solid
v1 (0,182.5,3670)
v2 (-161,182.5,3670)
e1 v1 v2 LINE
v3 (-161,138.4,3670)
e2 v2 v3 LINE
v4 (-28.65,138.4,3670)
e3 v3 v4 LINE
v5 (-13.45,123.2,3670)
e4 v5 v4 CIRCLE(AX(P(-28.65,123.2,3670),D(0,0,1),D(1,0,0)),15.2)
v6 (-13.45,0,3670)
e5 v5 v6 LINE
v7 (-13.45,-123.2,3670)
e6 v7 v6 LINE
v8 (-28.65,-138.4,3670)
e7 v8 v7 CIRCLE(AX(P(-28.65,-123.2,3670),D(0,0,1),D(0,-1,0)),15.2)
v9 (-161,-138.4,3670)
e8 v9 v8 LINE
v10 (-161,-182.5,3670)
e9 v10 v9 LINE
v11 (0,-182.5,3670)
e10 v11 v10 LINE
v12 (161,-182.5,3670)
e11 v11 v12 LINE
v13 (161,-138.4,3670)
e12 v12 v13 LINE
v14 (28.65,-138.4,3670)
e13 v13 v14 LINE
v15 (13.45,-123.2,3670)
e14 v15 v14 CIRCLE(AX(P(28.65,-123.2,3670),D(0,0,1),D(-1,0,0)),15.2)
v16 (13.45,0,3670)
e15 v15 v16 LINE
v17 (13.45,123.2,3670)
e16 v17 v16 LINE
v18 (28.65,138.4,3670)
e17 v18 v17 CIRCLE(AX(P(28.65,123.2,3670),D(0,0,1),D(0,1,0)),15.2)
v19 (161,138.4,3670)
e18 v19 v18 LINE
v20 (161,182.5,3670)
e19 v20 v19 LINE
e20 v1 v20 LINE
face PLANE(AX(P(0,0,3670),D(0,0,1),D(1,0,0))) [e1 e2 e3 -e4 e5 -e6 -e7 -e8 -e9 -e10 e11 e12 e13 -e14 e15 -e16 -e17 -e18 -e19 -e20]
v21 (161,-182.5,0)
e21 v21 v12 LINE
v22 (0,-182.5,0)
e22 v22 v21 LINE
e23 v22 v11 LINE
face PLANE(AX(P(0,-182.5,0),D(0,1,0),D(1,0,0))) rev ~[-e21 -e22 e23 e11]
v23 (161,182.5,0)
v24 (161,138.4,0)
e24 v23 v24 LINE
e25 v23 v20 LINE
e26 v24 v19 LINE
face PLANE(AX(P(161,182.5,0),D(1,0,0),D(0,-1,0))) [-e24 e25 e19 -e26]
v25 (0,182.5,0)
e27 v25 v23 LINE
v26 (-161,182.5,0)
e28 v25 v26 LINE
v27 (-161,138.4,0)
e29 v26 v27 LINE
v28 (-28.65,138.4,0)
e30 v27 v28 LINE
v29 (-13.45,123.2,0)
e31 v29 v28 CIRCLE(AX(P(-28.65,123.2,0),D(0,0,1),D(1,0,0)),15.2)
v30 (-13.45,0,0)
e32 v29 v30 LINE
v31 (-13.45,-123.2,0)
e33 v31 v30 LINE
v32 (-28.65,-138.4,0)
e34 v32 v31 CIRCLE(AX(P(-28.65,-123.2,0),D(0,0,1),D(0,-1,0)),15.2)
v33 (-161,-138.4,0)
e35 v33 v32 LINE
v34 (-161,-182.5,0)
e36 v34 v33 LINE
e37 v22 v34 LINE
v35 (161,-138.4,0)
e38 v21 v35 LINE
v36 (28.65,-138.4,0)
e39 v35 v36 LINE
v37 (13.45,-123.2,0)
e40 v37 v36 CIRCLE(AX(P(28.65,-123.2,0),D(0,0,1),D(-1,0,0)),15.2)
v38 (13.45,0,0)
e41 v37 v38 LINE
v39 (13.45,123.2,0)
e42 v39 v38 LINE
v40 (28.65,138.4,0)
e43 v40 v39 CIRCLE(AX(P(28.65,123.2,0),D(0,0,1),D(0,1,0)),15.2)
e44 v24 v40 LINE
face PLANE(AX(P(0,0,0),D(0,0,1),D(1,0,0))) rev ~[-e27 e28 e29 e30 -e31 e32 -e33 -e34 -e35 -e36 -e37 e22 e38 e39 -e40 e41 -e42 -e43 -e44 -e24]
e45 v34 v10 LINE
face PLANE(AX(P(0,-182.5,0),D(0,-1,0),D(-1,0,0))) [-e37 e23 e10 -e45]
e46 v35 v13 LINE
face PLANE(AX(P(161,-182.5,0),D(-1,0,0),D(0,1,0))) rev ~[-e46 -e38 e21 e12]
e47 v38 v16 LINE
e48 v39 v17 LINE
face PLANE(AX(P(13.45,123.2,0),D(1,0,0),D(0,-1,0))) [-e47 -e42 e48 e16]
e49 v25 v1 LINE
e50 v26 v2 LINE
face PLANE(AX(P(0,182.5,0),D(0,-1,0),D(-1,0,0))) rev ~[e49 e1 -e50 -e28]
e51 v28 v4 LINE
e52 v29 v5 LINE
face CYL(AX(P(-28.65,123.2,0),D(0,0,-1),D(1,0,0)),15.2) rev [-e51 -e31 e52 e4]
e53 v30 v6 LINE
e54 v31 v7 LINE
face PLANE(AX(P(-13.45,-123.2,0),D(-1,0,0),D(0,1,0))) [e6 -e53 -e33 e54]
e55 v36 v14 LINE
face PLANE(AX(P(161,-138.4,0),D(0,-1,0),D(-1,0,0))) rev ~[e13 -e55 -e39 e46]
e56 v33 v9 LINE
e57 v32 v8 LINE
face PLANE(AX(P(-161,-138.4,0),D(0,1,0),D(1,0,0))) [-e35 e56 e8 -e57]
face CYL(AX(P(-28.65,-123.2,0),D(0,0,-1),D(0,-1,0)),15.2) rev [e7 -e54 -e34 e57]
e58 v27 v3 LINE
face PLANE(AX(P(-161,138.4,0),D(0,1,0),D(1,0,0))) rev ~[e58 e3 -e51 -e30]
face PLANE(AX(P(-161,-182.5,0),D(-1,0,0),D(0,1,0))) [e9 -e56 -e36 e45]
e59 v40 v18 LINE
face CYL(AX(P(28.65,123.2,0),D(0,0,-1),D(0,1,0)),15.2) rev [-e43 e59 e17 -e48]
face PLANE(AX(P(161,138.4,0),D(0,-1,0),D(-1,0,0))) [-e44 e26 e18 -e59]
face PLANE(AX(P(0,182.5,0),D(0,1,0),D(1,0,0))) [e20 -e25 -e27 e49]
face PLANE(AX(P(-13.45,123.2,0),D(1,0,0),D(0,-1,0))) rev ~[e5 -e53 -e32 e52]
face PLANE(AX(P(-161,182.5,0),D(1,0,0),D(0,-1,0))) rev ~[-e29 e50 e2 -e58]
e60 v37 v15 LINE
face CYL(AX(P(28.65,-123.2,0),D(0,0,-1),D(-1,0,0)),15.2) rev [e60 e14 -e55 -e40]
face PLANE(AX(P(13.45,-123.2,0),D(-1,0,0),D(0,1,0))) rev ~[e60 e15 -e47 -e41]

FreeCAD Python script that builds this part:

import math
import FreeCAD as App
import Part
import Sketcher

doc = App.newDocument("Part")
params = doc.addObject("Spreadsheet::Sheet", "Params")
for row, (alias, value) in enumerate([
    ("sketch1_radius", "15.2 mm"),
    ("sketch1_height", "44.1 mm"),
    ("pad1_length", "3670 mm"),
], start=1):
    params.set(f"A{row}", alias)
    params.set(f"B{row}", "=" + value)
    params.setAlias(f"B{row}", alias)

body = doc.addObject("PartDesign::Body", "Body")

# Sketch on XY plane
sketch1 = doc.addObject("Sketcher::SketchObject", "Sketch")
body.addObject(sketch1)
sketch1.AttachmentSupport = (doc.XY_Plane, [""])
sketch1.MapMode = "FlatFace"
sketch1.addGeometry(Part.LineSegment(App.Vector(-161, -138.4, 0), App.Vector(-161, -182.5, 0)), False)
sketch1.addGeometry(Part.LineSegment(App.Vector(-161, -182.5, 0), App.Vector(161, -182.5, 0)), False)
sketch1.addGeometry(Part.LineSegment(App.Vector(161, -182.5, 0), App.Vector(161, -138.4, 0)), False)
sketch1.addGeometry(Part.LineSegment(App.Vector(161, -138.4, 0), App.Vector(28.65, -138.4, 0)), False)
sketch1.addGeometry(Part.ArcOfCircle(Part.Circle(App.Vector(28.65, -123.2, 0), App.Vector(0, 0, 1), 15.2), math.radians(180), math.radians(270)), False)
sketch1.addGeometry(Part.LineSegment(App.Vector(13.45, -123.2, 0), App.Vector(13.45, 123.2, 0)), False)
sketch1.addGeometry(Part.ArcOfCircle(Part.Circle(App.Vector(28.65, 123.2, 0), App.Vector(0, 0, 1), 15.2), math.radians(90), math.radians(180)), False)
sketch1.addGeometry(Part.LineSegment(App.Vector(28.65, 138.4, 0), App.Vector(161, 138.4, 0)), False)
sketch1.addGeometry(Part.LineSegment(App.Vector(161, 138.4, 0), App.Vector(161, 182.5, 0)), False)
sketch1.addGeometry(Part.LineSegment(App.Vector(161, 182.5, 0), App.Vector(-161, 182.5, 0)), False)
sketch1.addGeometry(Part.LineSegment(App.Vector(-161, 182.5, 0), App.Vector(-161, 138.4, 0)), False)
sketch1.addGeometry(Part.LineSegment(App.Vector(-161, 138.4, 0), App.Vector(-28.65, 138.4, 0)), False)
sketch1.addGeometry(Part.ArcOfCircle(Part.Circle(App.Vector(-28.65, 123.2, 0), App.Vector(0, 0, 1), 15.2), math.radians(0), math.radians(90)), False)
sketch1.addGeometry(Part.LineSegment(App.Vector(-13.45, 123.2, 0), App.Vector(-13.45, -123.2, 0)), False)
sketch1.addGeometry(Part.ArcOfCircle(Part.Circle(App.Vector(-28.65, -123.2, 0), App.Vector(0, 0, 1), 15.2), math.radians(-90), math.radians(0)), False)
sketch1.addGeometry(Part.LineSegment(App.Vector(-28.65, -138.4, 0), App.Vector(-161, -138.4, 0)), False)
sketch1.addConstraint(Sketcher.Constraint("Coincident", 0, 2, 1, 1))
sketch1.addConstraint(Sketcher.Constraint("Coincident", 1, 2, 2, 1))
sketch1.addConstraint(Sketcher.Constraint("Coincident", 2, 2, 3, 1))
sketch1.addConstraint(Sketcher.Constraint("Tangent", 3, 2, 4, 2))
sketch1.addConstraint(Sketcher.Constraint("Tangent", 4, 1, 5, 1))
sketch1.addConstraint(Sketcher.Constraint("Tangent", 5, 2, 6, 2))
sketch1.addConstraint(Sketcher.Constraint("Tangent", 6, 1, 7, 1))
sketch1.addConstraint(Sketcher.Constraint("Coincident", 7, 2, 8, 1))
sketch1.addConstraint(Sketcher.Constraint("Coincident", 8, 2, 9, 1))
sketch1.addConstraint(Sketcher.Constraint("Coincident", 9, 2, 10, 1))
sketch1.addConstraint(Sketcher.Constraint("Coincident", 10, 2, 11, 1))
sketch1.addConstraint(Sketcher.Constraint("Tangent", 11, 2, 12, 2))
sketch1.addConstraint(Sketcher.Constraint("Tangent", 12, 1, 13, 1))
sketch1.addConstraint(Sketcher.Constraint("Tangent", 13, 2, 14, 2))
sketch1.addConstraint(Sketcher.Constraint("Tangent", 14, 1, 15, 1))
sketch1.addConstraint(Sketcher.Constraint("Coincident", 15, 2, 0, 1))
sketch1.addConstraint(Sketcher.Constraint("Vertical", 0))
sketch1.addConstraint(Sketcher.Constraint("Horizontal", 1))
sketch1.addConstraint(Sketcher.Constraint("Vertical", 2))
sketch1.addConstraint(Sketcher.Constraint("Horizontal", 3))
sketch1.addConstraint(Sketcher.Constraint("Vertical", 5))
sketch1.addConstraint(Sketcher.Constraint("Horizontal", 7))
sketch1.addConstraint(Sketcher.Constraint("Vertical", 8))
sketch1.addConstraint(Sketcher.Constraint("Horizontal", 9))
sketch1.addConstraint(Sketcher.Constraint("Vertical", 10))
sketch1.addConstraint(Sketcher.Constraint("Horizontal", 11))
sketch1.addConstraint(Sketcher.Constraint("Vertical", 13))
sketch1.addConstraint(Sketcher.Constraint("Horizontal", 15))
sketch1.addConstraint(Sketcher.Constraint("Equal", 4, 6))
sketch1.addConstraint(Sketcher.Constraint("Equal", 6, 12))
sketch1.addConstraint(Sketcher.Constraint("Equal", 12, 14))
sketch1.addConstraint(Sketcher.Constraint("Symmetric", 4, 3, 12, 3, -1, 1))
sketch1.addConstraint(Sketcher.Constraint("Symmetric", 0, 2, 8, 2, -1, 1))
sketch1.addConstraint(Sketcher.Constraint("Symmetric", 7, 2, 10, 2, -2))
sketch1.addConstraint(Sketcher.Constraint("Symmetric", 2, 2, 15, 2, -2))
sketch1.addConstraint(Sketcher.Constraint("Radius", 4, 15.2))
sketch1.addConstraint(Sketcher.Constraint("DistanceY", 0, 2, 0, 1, 44.1))
sketch1.addConstraint(Sketcher.Constraint("DistanceX", 0, 2, -1, 1, 161.0))
sketch1.addConstraint(Sketcher.Constraint("DistanceY", 0, 2, -1, 1, 182.5))
sketch1.addConstraint(Sketcher.Constraint("DistanceX", -1, 1, 4, 1, 13.45))
sketch1.setExpression("Constraints[35]", "Params.sketch1_radius")
sketch1.setExpression("Constraints[36]", "Params.sketch1_height")
pad1 = doc.addObject("PartDesign::Pad", "Pad")
body.addObject(pad1)
pad1.Profile = sketch1
pad1.setExpression("Length", "Params.pad1_length")

doc.recompute()
